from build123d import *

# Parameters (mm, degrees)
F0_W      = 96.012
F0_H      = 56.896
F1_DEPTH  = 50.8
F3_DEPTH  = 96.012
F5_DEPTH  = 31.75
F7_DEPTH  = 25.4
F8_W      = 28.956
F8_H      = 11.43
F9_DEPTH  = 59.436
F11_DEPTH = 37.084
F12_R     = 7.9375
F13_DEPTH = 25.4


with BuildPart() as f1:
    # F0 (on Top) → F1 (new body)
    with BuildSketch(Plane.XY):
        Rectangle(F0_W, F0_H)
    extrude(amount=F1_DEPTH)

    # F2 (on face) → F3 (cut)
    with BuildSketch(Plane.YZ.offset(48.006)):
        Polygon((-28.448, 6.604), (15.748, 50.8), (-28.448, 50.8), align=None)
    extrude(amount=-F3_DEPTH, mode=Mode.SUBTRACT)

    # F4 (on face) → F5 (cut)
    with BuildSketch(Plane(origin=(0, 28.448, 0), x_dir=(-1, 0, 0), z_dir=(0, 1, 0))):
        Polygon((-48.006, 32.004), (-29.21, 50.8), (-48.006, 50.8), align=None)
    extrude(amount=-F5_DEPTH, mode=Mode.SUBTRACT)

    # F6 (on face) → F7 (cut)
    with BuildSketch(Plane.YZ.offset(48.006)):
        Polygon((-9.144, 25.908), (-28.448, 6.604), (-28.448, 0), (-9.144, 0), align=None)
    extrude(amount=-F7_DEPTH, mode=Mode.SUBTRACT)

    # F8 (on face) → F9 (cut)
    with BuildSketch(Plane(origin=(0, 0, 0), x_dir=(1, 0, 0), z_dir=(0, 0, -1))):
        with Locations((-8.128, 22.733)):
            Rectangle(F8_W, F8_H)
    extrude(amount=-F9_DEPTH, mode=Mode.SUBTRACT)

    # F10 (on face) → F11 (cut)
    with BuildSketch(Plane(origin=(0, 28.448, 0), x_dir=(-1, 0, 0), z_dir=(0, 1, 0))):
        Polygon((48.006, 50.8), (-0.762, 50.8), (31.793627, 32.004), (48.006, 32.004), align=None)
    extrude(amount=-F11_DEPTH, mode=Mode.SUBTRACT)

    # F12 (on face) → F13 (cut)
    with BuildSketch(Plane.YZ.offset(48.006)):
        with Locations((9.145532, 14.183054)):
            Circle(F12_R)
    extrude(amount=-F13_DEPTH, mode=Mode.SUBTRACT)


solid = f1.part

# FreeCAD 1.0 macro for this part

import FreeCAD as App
import Part
import Sketcher
Q = App.Units.Quantity


def add_polygon(sketch, points):
    """Adds a closed chain of lines whose ends are joined by coincident constraints."""
    first, n = sketch.GeometryCount, len(points)
    for a, b in zip(points, points[1:] + points[:1]):
        sketch.addGeometry(Part.LineSegment(App.Vector(*a, 0), App.Vector(*b, 0)), False)
    for i in range(n):
        sketch.addConstraint(Sketcher.Constraint("Coincident", first + i, 2, first + (i + 1) % n, 1))

doc = App.newDocument("Part")
body = doc.addObject("PartDesign::Body", "Body")

sketch1 = body.newObject("Sketcher::SketchObject", "Sketch")
sketch1.AttachmentSupport = (doc.getObject("XY_Plane"), [""])
sketch1.MapMode = "FlatFace"
add_polygon(sketch1, [(-48, 28), (-48, -28), (48, -28), (48, 28)])
sketch1.addConstraint([
    Sketcher.Constraint("Vertical", 0),
    Sketcher.Constraint("Horizontal", 1),
    Sketcher.Constraint("Vertical", 2),
    Sketcher.Constraint("Horizontal", 3),
    Sketcher.Constraint("Symmetric", 0, 2, 2, 2, -1, 1),
    Sketcher.Constraint("DistanceX", 1, 1, 1, 2, Q("3.78 in")),
    Sketcher.Constraint("DistanceY", 0, 2, 0, 1, Q("2.24 in")),
])
pad1 = body.newObject("PartDesign::Pad", "Pad")
pad1.Profile = sketch1
pad1.Length = Q("2 in")

sketch2 = body.newObject("Sketcher::SketchObject", "Sketch001")
sketch2.AttachmentSupport = (doc.getObject("YZ_Plane"), [""])
sketch2.MapMode = "FlatFace"
sketch2.AttachmentOffset = App.Placement(App.Vector(0, 0, 1.89 * 25.4), App.Rotation())
add_polygon(sketch2, [(-28, 7), (16, 51), (-28, 51)])
sketch2.addConstraint([
    Sketcher.Constraint("Horizontal", 1),
    Sketcher.Constraint("Vertical", 2),
    Sketcher.Constraint("Equal", 1, 2),
    Sketcher.Constraint("DistanceY", -1, 1, 0, 2, Q("2 in")),
    Sketcher.Constraint("DistanceX", 1, 2, 1, 1, Q("1.74 in")),
    Sketcher.Constraint("DistanceX", -1, 1, 0, 2, Q("0.62 in")),
])
pocket1 = body.newObject("PartDesign::Pocket", "Pocket")
pocket1.Profile = sketch2
pocket1.Length = Q("3.78 in")

sketch3 = body.newObject("Sketcher::SketchObject", "Sketch002")
sketch3.AttachmentSupport = (doc.getObject("XZ_Plane"), [""])
sketch3.MapMode = "FlatFace"
sketch3.AttachmentOffset = App.Placement(App.Vector(0, 0, -1.12 * 25.4), App.Rotation())
add_polygon(sketch3, [(48, 32), (29, 51), (48, 51)])
sketch3.addConstraint([
    Sketcher.Constraint("Horizontal", 1),
    Sketcher.Constraint("Vertical", 2),
    Sketcher.Constraint("Equal", 1, 2),
    Sketcher.Constraint("DistanceY", -1, 1, 0, 2, Q("2 in")),
    Sketcher.Constraint("DistanceX", 1, 1, 1, 2, Q("0.74 in")),
    Sketcher.Constraint("DistanceX", -1, 1, 0, 2, Q("1.15 in")),
])
pocket2 = body.newObject("PartDesign::Pocket", "Pocket001")
pocket2.Profile = sketch3
pocket2.Length = Q("1.25 in")
pocket2.Reversed = True

sketch4 = body.newObject("Sketcher::SketchObject", "Sketch003")
sketch4.AttachmentSupport = (doc.getObject("YZ_Plane"), [""])
sketch4.MapMode = "FlatFace"
sketch4.AttachmentOffset = App.Placement(App.Vector(0, 0, 1.89 * 25.4), App.Rotation())
add_polygon(sketch4, [(-9, 26), (-28, 7), (-28, 0), (-9, 0)])
sketch4.addConstraint([
    Sketcher.Constraint("Vertical", 1),
    Sketcher.Constraint("Horizontal", 2),
    Sketcher.Constraint("Vertical", 3),
    Sketcher.Constraint("PointOnObject", 1, 2, -1),
    Sketcher.Constraint("Angle", 0, Q("-135 deg")),
    Sketcher.Constraint("DistanceX", 2, 1, 2, 2, Q("0.76 in")),
    Sketcher.Constraint("DistanceY", 1, 2, 1, 1, Q("0.26 in")),
    Sketcher.Constraint("DistanceX", 0, 2, -1, 1, Q("1.12 in")),
])
pocket3 = body.newObject("PartDesign::Pocket", "Pocket002")
pocket3.Profile = sketch4
pocket3.Length = Q("1 in")

sketch5 = body.newObject("Sketcher::SketchObject", "Sketch004")
sketch5.AttachmentSupport = (doc.getObject("XY_Plane"), [""])
sketch5.MapMode = "FlatFace"
add_polygon(sketch5, [(-23, -28), (-23, -17), (6, -17), (6, -28)])
sketch5.addConstraint([
    Sketcher.Constraint("Vertical", 0),
    Sketcher.Constraint("Horizontal", 1),
    Sketcher.Constraint("Vertical", 2),
    Sketcher.Constraint("Horizontal", 3),
    Sketcher.Constraint("DistanceX", 1, 1, 1, 2, Q("1.14 in")),
    Sketcher.Constraint("DistanceY", 0, 1, 0, 2, Q("0.45 in")),
    Sketcher.Constraint("DistanceX", 0, 2, -1, 1, Q("0.89 in")),
    Sketcher.Constraint("DistanceY", 0, 2, -1, 1, Q("0.67 in")),
])
pocket4 = body.newObject("PartDesign::Pocket", "Pocket003")
pocket4.Profile = sketch5
pocket4.Length = Q("2.34 in")
pocket4.Reversed = True

sketch6 = body.newObject("Sketcher::SketchObject", "Sketch005")
sketch6.AttachmentSupport = (doc.getObject("XZ_Plane"), [""])
sketch6.MapMode = "FlatFace"
sketch6.AttachmentOffset = App.Placement(App.Vector(0, 0, -1.12 * 25.4), App.Rotation())
add_polygon(sketch6, [(-48, 51), (1, 51), (-32, 32), (-48, 32)])
sketch6.addConstraint([
    Sketcher.Constraint("Horizontal", 0),
    Sketcher.Constraint("Horizontal", 2),
    Sketcher.Constraint("Vertical", 3),
    Sketcher.Constraint("DistanceY", -1, 1, 0, 2, Q("2 in")),
    Sketcher.Constraint("Angle", 1, Q("-150 deg")),
    Sketcher.Constraint("DistanceX", 0, 1, 0, 2, Q("1.92 in")),
    Sketcher.Constraint("DistanceY", 3, 1, 3, 2, Q("0.74 in")),
    Sketcher.Constraint("DistanceX", -1, 1, 0, 2, Q("0.03 in")),
])
pocket5 = body.newObject("PartDesign::Pocket", "Pocket004")
pocket5.Profile = sketch6
pocket5.Length = Q("1.46 in")
pocket5.Reversed = True

sketch7 = body.newObject("Sketcher::SketchObject", "Sketch006")
sketch7.AttachmentSupport = (doc.getObject("YZ_Plane"), [""])
sketch7.MapMode = "FlatFace"
sketch7.AttachmentOffset = App.Placement(App.Vector(0, 0, 1.89 * 25.4), App.Rotation())
sketch7.addGeometry(Part.Circle(App.Vector(9, 14, 0), App.Vector(0, 0, 1), 8), False)
sketch7.addConstraint([
    Sketcher.Constraint("Diameter", 0, Q("0.625 in")),
    Sketcher.Constraint("DistanceX", -1, 1, 0, 3, 9.145532),
    Sketcher.Constraint("DistanceY", -1, 1, 0, 3, 14.183054),
])
pocket6 = body.newObject("PartDesign::Pocket", "Pocket005")
pocket6.Profile = sketch7
pocket6.Length = Q("1 in")

doc.recompute()
